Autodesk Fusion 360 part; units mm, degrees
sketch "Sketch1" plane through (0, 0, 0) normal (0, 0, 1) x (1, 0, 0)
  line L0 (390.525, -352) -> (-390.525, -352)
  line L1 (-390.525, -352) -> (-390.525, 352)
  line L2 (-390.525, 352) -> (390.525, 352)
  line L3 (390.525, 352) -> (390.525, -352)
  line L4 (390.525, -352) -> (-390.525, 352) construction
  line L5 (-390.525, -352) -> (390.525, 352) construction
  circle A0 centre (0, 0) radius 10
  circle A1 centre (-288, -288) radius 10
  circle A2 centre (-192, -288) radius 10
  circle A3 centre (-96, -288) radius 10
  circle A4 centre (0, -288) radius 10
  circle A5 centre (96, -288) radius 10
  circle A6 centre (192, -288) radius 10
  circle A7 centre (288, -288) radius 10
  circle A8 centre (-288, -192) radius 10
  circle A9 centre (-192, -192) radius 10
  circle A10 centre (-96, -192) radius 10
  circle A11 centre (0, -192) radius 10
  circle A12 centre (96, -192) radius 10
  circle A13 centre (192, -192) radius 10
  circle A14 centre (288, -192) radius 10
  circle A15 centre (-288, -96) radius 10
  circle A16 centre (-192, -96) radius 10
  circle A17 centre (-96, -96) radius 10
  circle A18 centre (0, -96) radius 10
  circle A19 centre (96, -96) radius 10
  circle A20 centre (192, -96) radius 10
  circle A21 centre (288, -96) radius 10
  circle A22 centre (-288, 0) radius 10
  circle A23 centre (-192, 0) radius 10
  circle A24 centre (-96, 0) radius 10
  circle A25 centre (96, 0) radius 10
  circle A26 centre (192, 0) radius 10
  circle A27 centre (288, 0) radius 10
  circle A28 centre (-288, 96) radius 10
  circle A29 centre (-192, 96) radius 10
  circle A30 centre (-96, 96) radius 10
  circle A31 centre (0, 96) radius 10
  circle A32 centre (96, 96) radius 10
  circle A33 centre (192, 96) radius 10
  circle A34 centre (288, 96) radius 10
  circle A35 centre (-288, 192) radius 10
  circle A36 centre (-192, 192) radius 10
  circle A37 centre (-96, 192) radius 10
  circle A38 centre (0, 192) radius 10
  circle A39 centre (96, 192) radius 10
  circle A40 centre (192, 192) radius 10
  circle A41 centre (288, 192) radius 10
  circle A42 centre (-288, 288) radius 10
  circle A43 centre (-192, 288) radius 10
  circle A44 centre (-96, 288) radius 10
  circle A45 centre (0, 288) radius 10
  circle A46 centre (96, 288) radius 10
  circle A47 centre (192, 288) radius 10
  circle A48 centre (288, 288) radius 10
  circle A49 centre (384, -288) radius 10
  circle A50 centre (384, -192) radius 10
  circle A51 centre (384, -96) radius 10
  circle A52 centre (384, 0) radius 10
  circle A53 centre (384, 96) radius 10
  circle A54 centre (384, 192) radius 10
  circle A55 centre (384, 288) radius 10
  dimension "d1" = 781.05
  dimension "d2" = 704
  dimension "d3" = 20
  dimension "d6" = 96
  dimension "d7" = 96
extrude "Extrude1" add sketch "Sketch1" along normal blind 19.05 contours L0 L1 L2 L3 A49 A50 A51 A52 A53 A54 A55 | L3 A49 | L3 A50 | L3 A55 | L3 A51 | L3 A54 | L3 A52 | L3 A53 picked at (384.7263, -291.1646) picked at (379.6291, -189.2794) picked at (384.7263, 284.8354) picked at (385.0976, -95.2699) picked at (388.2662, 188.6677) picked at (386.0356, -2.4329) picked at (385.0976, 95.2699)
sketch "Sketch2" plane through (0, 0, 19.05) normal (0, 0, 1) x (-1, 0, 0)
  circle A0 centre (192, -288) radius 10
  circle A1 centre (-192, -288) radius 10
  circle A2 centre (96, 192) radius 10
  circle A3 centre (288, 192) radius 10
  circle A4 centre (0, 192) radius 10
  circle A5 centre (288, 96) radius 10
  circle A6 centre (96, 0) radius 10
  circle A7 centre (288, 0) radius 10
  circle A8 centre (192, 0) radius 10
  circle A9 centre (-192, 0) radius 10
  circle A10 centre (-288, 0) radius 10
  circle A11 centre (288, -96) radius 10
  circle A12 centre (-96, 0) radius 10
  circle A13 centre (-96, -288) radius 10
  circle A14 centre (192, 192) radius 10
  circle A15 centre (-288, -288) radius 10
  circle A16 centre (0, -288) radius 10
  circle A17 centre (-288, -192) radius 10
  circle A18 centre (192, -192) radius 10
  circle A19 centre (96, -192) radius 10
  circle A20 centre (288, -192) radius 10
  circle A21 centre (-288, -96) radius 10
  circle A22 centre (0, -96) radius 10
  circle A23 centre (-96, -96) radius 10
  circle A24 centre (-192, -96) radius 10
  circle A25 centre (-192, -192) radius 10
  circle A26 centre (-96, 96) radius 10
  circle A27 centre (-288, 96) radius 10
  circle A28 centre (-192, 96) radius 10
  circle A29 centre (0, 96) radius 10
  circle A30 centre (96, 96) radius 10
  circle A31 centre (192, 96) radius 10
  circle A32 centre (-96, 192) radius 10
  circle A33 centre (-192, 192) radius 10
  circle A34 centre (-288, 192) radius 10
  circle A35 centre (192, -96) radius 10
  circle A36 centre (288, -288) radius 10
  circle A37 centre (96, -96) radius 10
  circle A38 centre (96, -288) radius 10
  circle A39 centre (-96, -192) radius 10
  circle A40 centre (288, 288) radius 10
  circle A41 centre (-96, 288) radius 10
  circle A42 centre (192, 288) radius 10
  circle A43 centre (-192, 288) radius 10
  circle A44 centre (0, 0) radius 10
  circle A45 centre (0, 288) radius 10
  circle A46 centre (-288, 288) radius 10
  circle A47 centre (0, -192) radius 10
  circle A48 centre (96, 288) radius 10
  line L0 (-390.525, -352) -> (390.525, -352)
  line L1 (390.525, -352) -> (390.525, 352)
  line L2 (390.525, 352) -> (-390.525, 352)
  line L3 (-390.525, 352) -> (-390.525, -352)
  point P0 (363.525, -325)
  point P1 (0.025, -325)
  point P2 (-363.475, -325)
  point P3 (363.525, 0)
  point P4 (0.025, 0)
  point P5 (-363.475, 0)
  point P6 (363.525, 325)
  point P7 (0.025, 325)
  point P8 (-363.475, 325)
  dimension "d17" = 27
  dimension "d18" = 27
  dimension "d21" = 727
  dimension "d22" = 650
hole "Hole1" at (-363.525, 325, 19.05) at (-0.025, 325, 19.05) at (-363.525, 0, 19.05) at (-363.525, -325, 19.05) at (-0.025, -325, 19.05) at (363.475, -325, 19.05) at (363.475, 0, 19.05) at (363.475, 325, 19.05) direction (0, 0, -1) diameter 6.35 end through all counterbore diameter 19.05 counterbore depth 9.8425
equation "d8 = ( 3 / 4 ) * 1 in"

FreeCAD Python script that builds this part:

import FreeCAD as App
import Part
import Sketcher
Q = App.Units.Quantity


def add_polygon(sketch, points):
    """Adds a closed chain of lines whose ends are joined by coincident constraints."""
    first, n = sketch.GeometryCount, len(points)
    for a, b in zip(points, points[1:] + points[:1]):
        sketch.addGeometry(Part.LineSegment(App.Vector(*a, 0), App.Vector(*b, 0)), False)
    for i in range(n):
        sketch.addConstraint(Sketcher.Constraint("Coincident", first + i, 2, first + (i + 1) % n, 1))

doc = App.newDocument("Part")
body = doc.addObject("PartDesign::Body", "Body")

sketch1 = body.newObject("Sketcher::SketchObject", "Sketch")
sketch1.AttachmentSupport = (doc.getObject("XY_Plane"), [""])
sketch1.MapMode = "FlatFace"
add_polygon(sketch1, [(-391, -352), (391, -352), (391, 352), (-391, 352)])
sketch1.addGeometry(Part.Circle(App.Vector(-288, -288, 0), App.Vector(0, 0, 1), 10), False)
sketch1.addGeometry(Part.Circle(App.Vector(-288, -192, 0), App.Vector(0, 0, 1), 10), False)
sketch1.addGeometry(Part.Circle(App.Vector(-192, -288, 0), App.Vector(0, 0, 1), 10), False)
sketch1.addGeometry(Part.Circle(App.Vector(-96, -288, 0), App.Vector(0, 0, 1), 10), False)
sketch1.addGeometry(Part.Circle(App.Vector(0, -288, 0), App.Vector(0, 0, 1), 10), False)
sketch1.addGeometry(Part.Circle(App.Vector(-192, -192, 0), App.Vector(0, 0, 1), 10), False)
sketch1.addGeometry(Part.Circle(App.Vector(-96, -192, 0), App.Vector(0, 0, 1), 10), False)
sketch1.addGeometry(Part.Circle(App.Vector(0, -192, 0), App.Vector(0, 0, 1), 10), False)
sketch1.addGeometry(Part.Circle(App.Vector(-288, -96, 0), App.Vector(0, 0, 1), 10), False)
sketch1.addGeometry(Part.Circle(App.Vector(-192, -96, 0), App.Vector(0, 0, 1), 10), False)
sketch1.addGeometry(Part.Circle(App.Vector(-96, -96, 0), App.Vector(0, 0, 1), 10), False)
sketch1.addGeometry(Part.Circle(App.Vector(0, -96, 0), App.Vector(0, 0, 1), 10), False)
sketch1.addGeometry(Part.Circle(App.Vector(96, -288, 0), App.Vector(0, 0, 1), 10), False)
sketch1.addGeometry(Part.Circle(App.Vector(192, -288, 0), App.Vector(0, 0, 1), 10), False)
sketch1.addGeometry(Part.Circle(App.Vector(96, -192, 0), App.Vector(0, 0, 1), 10), False)
sketch1.addGeometry(Part.Circle(App.Vector(192, -192, 0), App.Vector(0, 0, 1), 10), False)
sketch1.addGeometry(Part.Circle(App.Vector(288, -288, 0), App.Vector(0, 0, 1), 10), False)
sketch1.addGeometry(Part.Circle(App.Vector(288, -192, 0), App.Vector(0, 0, 1), 10), False)
sketch1.addGeometry(Part.Circle(App.Vector(96, -96, 0), App.Vector(0, 0, 1), 10), False)
sketch1.addGeometry(Part.Circle(App.Vector(192, -96, 0), App.Vector(0, 0, 1), 10), False)
sketch1.addGeometry(Part.Circle(App.Vector(288, -96, 0), App.Vector(0, 0, 1), 10), False)
sketch1.addGeometry(Part.Circle(App.Vector(-288, 0, 0), App.Vector(0, 0, 1), 10), False)
sketch1.addGeometry(Part.Circle(App.Vector(-288, 96, 0), App.Vector(0, 0, 1), 10), False)
sketch1.addGeometry(Part.Circle(App.Vector(-192, 0, 0), App.Vector(0, 0, 1), 10), False)
sketch1.addGeometry(Part.Circle(App.Vector(-96, 0, 0), App.Vector(0, 0, 1), 10), False)
sketch1.addGeometry(Part.Circle(App.Vector(0, 0, 0), App.Vector(0, 0, 1), 10), False)
sketch1.addGeometry(Part.Circle(App.Vector(-192, 96, 0), App.Vector(0, 0, 1), 10), False)
sketch1.addGeometry(Part.Circle(App.Vector(-96, 96, 0), App.Vector(0, 0, 1), 10), False)
sketch1.addGeometry(Part.Circle(App.Vector(0, 96, 0), App.Vector(0, 0, 1), 10), False)
sketch1.addGeometry(Part.Circle(App.Vector(-288, 192, 0), App.Vector(0, 0, 1), 10), False)
sketch1.addGeometry(Part.Circle(App.Vector(-288, 288, 0), App.Vector(0, 0, 1), 10), False)
sketch1.addGeometry(Part.Circle(App.Vector(-192, 192, 0), App.Vector(0, 0, 1), 10), False)
sketch1.addGeometry(Part.Circle(App.Vector(-96, 192, 0), App.Vector(0, 0, 1), 10), False)
sketch1.addGeometry(Part.Circle(App.Vector(0, 192, 0), App.Vector(0, 0, 1), 10), False)
sketch1.addGeometry(Part.Circle(App.Vector(-192, 288, 0), App.Vector(0, 0, 1), 10), False)
sketch1.addGeometry(Part.Circle(App.Vector(-96, 288, 0), App.Vector(0, 0, 1), 10), False)
sketch1.addGeometry(Part.Circle(App.Vector(0, 288, 0), App.Vector(0, 0, 1), 10), False)
sketch1.addGeometry(Part.Circle(App.Vector(96, 0, 0), App.Vector(0, 0, 1), 10), False)
sketch1.addGeometry(Part.Circle(App.Vector(192, 0, 0), App.Vector(0, 0, 1), 10), False)
sketch1.addGeometry(Part.Circle(App.Vector(96, 96, 0), App.Vector(0, 0, 1), 10), False)
sketch1.addGeometry(Part.Circle(App.Vector(192, 96, 0), App.Vector(0, 0, 1), 10), False)
sketch1.addGeometry(Part.Circle(App.Vector(288, 0, 0), App.Vector(0, 0, 1), 10), False)
sketch1.addGeometry(Part.Circle(App.Vector(288, 96, 0), App.Vector(0, 0, 1), 10), False)
sketch1.addGeometry(Part.Circle(App.Vector(96, 192, 0), App.Vector(0, 0, 1), 10), False)
sketch1.addGeometry(Part.Circle(App.Vector(192, 192, 0), App.Vector(0, 0, 1), 10), False)
sketch1.addGeometry(Part.Circle(App.Vector(96, 288, 0), App.Vector(0, 0, 1), 10), False)
sketch1.addGeometry(Part.Circle(App.Vector(192, 288, 0), App.Vector(0, 0, 1), 10), False)
sketch1.addGeometry(Part.Circle(App.Vector(288, 192, 0), App.Vector(0, 0, 1), 10), False)
sketch1.addGeometry(Part.Circle(App.Vector(288, 288, 0), App.Vector(0, 0, 1), 10), False)
sketch1.addConstraint(Sketcher.Constraint("Horizontal", 0))
sketch1.addConstraint(Sketcher.Constraint("Vertical", 1))
sketch1.addConstraint(Sketcher.Constraint("Horizontal", 2))
sketch1.addConstraint(Sketcher.Constraint("Vertical", 3))
sketch1.addConstraint(Sketcher.Constraint("Coincident", 29, 3, -1, 1))
sketch1.addConstraint(Sketcher.Constraint("Equal", 4, 5))
sketch1.addConstraint(Sketcher.Constraint("Equal", 5, 6))
sketch1.addConstraint(Sketcher.Constraint("Equal", 6, 7))
sketch1.addConstraint(Sketcher.Constraint("Equal", 7, 8))
sketch1.addConstraint(Sketcher.Constraint("Equal", 8, 9))
sketch1.addConstraint(Sketcher.Constraint("Equal", 9, 10))
sketch1.addConstraint(Sketcher.Constraint("Equal", 10, 11))
sketch1.addConstraint(Sketcher.Constraint("Equal", 11, 12))
sketch1.addConstraint(Sketcher.Constraint("Equal", 12, 13))
sketch1.addConstraint(Sketcher.Constraint("Equal", 13, 14))
sketch1.addConstraint(Sketcher.Constraint("Equal", 14, 15))
sketch1.addConstraint(Sketcher.Constraint("Equal", 15, 16))
sketch1.addConstraint(Sketcher.Constraint("Equal", 16, 17))
sketch1.addConstraint(Sketcher.Constraint("Equal", 17, 18))
sketch1.addConstraint(Sketcher.Constraint("Equal", 18, 19))
sketch1.addConstraint(Sketcher.Constraint("Equal", 19, 20))
sketch1.addConstraint(Sketcher.Constraint("Equal", 20, 21))
sketch1.addConstraint(Sketcher.Constraint("Equal", 21, 22))
sketch1.addConstraint(Sketcher.Constraint("Equal", 22, 23))
sketch1.addConstraint(Sketcher.Constraint("Equal", 23, 24))
sketch1.addConstraint(Sketcher.Constraint("Equal", 24, 25))
sketch1.addConstraint(Sketcher.Constraint("Equal", 25, 26))
sketch1.addConstraint(Sketcher.Constraint("Equal", 26, 27))
sketch1.addConstraint(Sketcher.Constraint("Equal", 27, 28))
sketch1.addConstraint(Sketcher.Constraint("Equal", 28, 29))
sketch1.addConstraint(Sketcher.Constraint("Equal", 29, 30))
sketch1.addConstraint(Sketcher.Constraint("Equal", 30, 31))
sketch1.addConstraint(Sketcher.Constraint("Equal", 31, 32))
sketch1.addConstraint(Sketcher.Constraint("Equal", 32, 33))
sketch1.addConstraint(Sketcher.Constraint("Equal", 33, 34))
sketch1.addConstraint(Sketcher.Constraint("Equal", 34, 35))
sketch1.addConstraint(Sketcher.Constraint("Equal", 35, 36))
sketch1.addConstraint(Sketcher.Constraint("Equal", 36, 37))
sketch1.addConstraint(Sketcher.Constraint("Equal", 37, 38))
sketch1.addConstraint(Sketcher.Constraint("Equal", 38, 39))
sketch1.addConstraint(Sketcher.Constraint("Equal", 39, 40))
sketch1.addConstraint(Sketcher.Constraint("Equal", 40, 41))
sketch1.addConstraint(Sketcher.Constraint("Equal", 41, 42))
sketch1.addConstraint(Sketcher.Constraint("Equal", 42, 43))
sketch1.addConstraint(Sketcher.Constraint("Equal", 43, 44))
sketch1.addConstraint(Sketcher.Constraint("Equal", 44, 45))
sketch1.addConstraint(Sketcher.Constraint("Equal", 45, 46))
sketch1.addConstraint(Sketcher.Constraint("Equal", 46, 47))
sketch1.addConstraint(Sketcher.Constraint("Equal", 47, 48))
sketch1.addConstraint(Sketcher.Constraint("Equal", 48, 49))
sketch1.addConstraint(Sketcher.Constraint("Equal", 49, 50))
sketch1.addConstraint(Sketcher.Constraint("Equal", 50, 51))
sketch1.addConstraint(Sketcher.Constraint("Equal", 51, 52))
sketch1.addConstraint(Sketcher.Constraint("Symmetric", 24, 3, 26, 3, -1, 1))
sketch1.addConstraint(Sketcher.Constraint("Symmetric", 23, 3, 30, 3, -1, 1))
sketch1.addConstraint(Sketcher.Constraint("Symmetric", 22, 3, 31, 3, -1, 1))
sketch1.addConstraint(Sketcher.Constraint("Symmetric", 15, 3, 32, 3, -1, 1))
sketch1.addConstraint(Sketcher.Constraint("Symmetric", 21, 3, 33, 3, -1, 1))
sketch1.addConstraint(Sketcher.Constraint("Symmetric", 20, 3, 34, 3, -1, 1))
sketch1.addConstraint(Sketcher.Constraint("Symmetric", 19, 3, 35, 3, -1, 1))
sketch1.addConstraint(Sketcher.Constraint("Symmetric", 18, 3, 36, 3, -1, 1))
sketch1.addConstraint(Sketcher.Constraint("Symmetric", 11, 3, 37, 3, -1, 1))
sketch1.addConstraint(Sketcher.Constraint("Symmetric", 17, 3, 38, 3, -1, 1))
sketch1.addConstraint(Sketcher.Constraint("Symmetric", 16, 3, 39, 3, -1, 1))
sketch1.addConstraint(Sketcher.Constraint("Symmetric", 8, 3, 40, 3, -1, 1))
sketch1.addConstraint(Sketcher.Constraint("Symmetric", 28, 3, 41, 3, -1, 1))
sketch1.addConstraint(Sketcher.Constraint("Symmetric", 27, 3, 42, 3, -1, 1))
sketch1.addConstraint(Sketcher.Constraint("Symmetric", 14, 3, 43, 3, -1, 1))
sketch1.addConstraint(Sketcher.Constraint("Symmetric", 13, 3, 44, 3, -1, 1))
sketch1.addConstraint(Sketcher.Constraint("Symmetric", 25, 3, 45, 3, -1, 1))
sketch1.addConstraint(Sketcher.Constraint("Symmetric", 12, 3, 46, 3, -1, 1))
sketch1.addConstraint(Sketcher.Constraint("Symmetric", 10, 3, 47, 3, -1, 1))
sketch1.addConstraint(Sketcher.Constraint("Symmetric", 9, 3, 48, 3, -1, 1))
sketch1.addConstraint(Sketcher.Constraint("Symmetric", 7, 3, 49, 3, -1, 1))
sketch1.addConstraint(Sketcher.Constraint("Symmetric", 6, 3, 50, 3, -1, 1))
sketch1.addConstraint(Sketcher.Constraint("Symmetric", 5, 3, 51, 3, -1, 1))
sketch1.addConstraint(Sketcher.Constraint("Symmetric", 4, 3, 52, 3, -1, 1))
sketch1.addConstraint(Sketcher.Constraint("Symmetric", 0, 2, 2, 2, -1, 1))
sketch1.addConstraint(Sketcher.Constraint("Symmetric", 7, 3, 16, 3, -2))
sketch1.addConstraint(Sketcher.Constraint("Symmetric", 6, 3, 17, 3, -2))
sketch1.addConstraint(Sketcher.Constraint("Symmetric", 10, 3, 18, 3, -2))
sketch1.addConstraint(Sketcher.Constraint("Symmetric", 9, 3, 19, 3, -2))
sketch1.addConstraint(Sketcher.Constraint("Symmetric", 4, 3, 20, 3, -2))
sketch1.addConstraint(Sketcher.Constraint("Symmetric", 5, 3, 21, 3, -2))
sketch1.addConstraint(Sketcher.Constraint("Symmetric", 14, 3, 22, 3, -2))
sketch1.addConstraint(Sketcher.Constraint("Symmetric", 13, 3, 23, 3, -2))
sketch1.addConstraint(Sketcher.Constraint("Symmetric", 12, 3, 24, 3, -2))
sketch1.addConstraint(Sketcher.Constraint("PointOnObject", 8, 3, -2))
sketch1.addConstraint(Sketcher.Constraint("PointOnObject", 11, 3, -2))
sketch1.addConstraint(Sketcher.Constraint("PointOnObject", 15, 3, -2))
sketch1.addConstraint(Sketcher.Constraint("PointOnObject", 25, 3, -1))
sketch1.addConstraint(Sketcher.Constraint("PointOnObject", 27, 3, -1))
sketch1.addConstraint(Sketcher.Constraint("PointOnObject", 28, 3, -1))
sketch1.addConstraint(Sketcher.Constraint("Horizontal", 4, 3, 6, 3))
sketch1.addConstraint(Sketcher.Constraint("Horizontal", 6, 3, 7, 3))
sketch1.addConstraint(Sketcher.Constraint("Horizontal", 7, 3, 8, 3))
sketch1.addConstraint(Sketcher.Constraint("Horizontal", 5, 3, 9, 3))
sketch1.addConstraint(Sketcher.Constraint("Horizontal", 9, 3, 10, 3))
sketch1.addConstraint(Sketcher.Constraint("Horizontal", 10, 3, 11, 3))
sketch1.addConstraint(Sketcher.Constraint("Horizontal", 12, 3, 13, 3))
sketch1.addConstraint(Sketcher.Constraint("Horizontal", 13, 3, 14, 3))
sketch1.addConstraint(Sketcher.Constraint("Horizontal", 14, 3, 15, 3))
sketch1.addConstraint(Sketcher.Constraint("Vertical", 4, 3, 5, 3))
sketch1.addConstraint(Sketcher.Constraint("Vertical", 6, 3, 9, 3))
sketch1.addConstraint(Sketcher.Constraint("Vertical", 7, 3, 10, 3))
sketch1.addConstraint(Sketcher.Constraint("Vertical", 5, 3, 12, 3))
sketch1.addConstraint(Sketcher.Constraint("Vertical", 9, 3, 13, 3))
sketch1.addConstraint(Sketcher.Constraint("Vertical", 10, 3, 14, 3))
sketch1.addConstraint(Sketcher.Constraint("Vertical", 12, 3, 25, 3))
sketch1.addConstraint(Sketcher.Constraint("Vertical", 13, 3, 27, 3))
sketch1.addConstraint(Sketcher.Constraint("Vertical", 14, 3, 28, 3))
sketch1.addConstraint(Sketcher.Constraint("Diameter", 4, Q("0.7874 in")))
sketch1.addConstraint(Sketcher.Constraint("DistanceX", 0, 1, 0, 2, Q("30.75 in")))
sketch1.addConstraint(Sketcher.Constraint("DistanceY", 1, 1, 1, 2, 704.0))
sketch1.addConstraint(Sketcher.Constraint("DistanceX", 7, 3, -1, 1, 96.0))
sketch1.addConstraint(Sketcher.Constraint("DistanceY", 12, 3, -1, 1, 96.0))
sketch1.addConstraint(Sketcher.Constraint("DistanceY", 4, 3, 5, 3, 96.0))
sketch1.addConstraint(Sketcher.Constraint("DistanceX", 4, 3, 6, 3, 96.0))
sketch1.addConstraint(Sketcher.Constraint("DistanceX", 6, 3, 7, 3, 96.0))
sketch1.addConstraint(Sketcher.Constraint("DistanceY", 5, 3, 12, 3, 96.0))
pad1 = body.newObject("PartDesign::Pad", "Pad")
pad1.Profile = sketch1
pad1.Length = Q("0.75 in")

sketch2 = body.newObject("Sketcher::SketchObject", "Sketch001")
sketch2.AttachmentSupport = (doc.getObject("XY_Plane"), [""])
sketch2.MapMode = "FlatFace"
sketch2.AttachmentOffset = App.Placement(App.Vector(0, 0, 0.75 * 25.4), App.Rotation())
sketch2.addGeometry(Part.Circle(App.Vector(-363.5, 325, 0), App.Vector(0, 0, 1), 3.2), False)
sketch2.addGeometry(Part.Circle(App.Vector(0, 325, 0), App.Vector(0, 0, 1), 3.2), False)
sketch2.addGeometry(Part.Circle(App.Vector(-363.5, 0, 0), App.Vector(0, 0, 1), 3.2), False)
sketch2.addGeometry(Part.Circle(App.Vector(-363.5, -325, 0), App.Vector(0, 0, 1), 3.2), False)
sketch2.addGeometry(Part.Circle(App.Vector(0, -325, 0), App.Vector(0, 0, 1), 3.2), False)
sketch2.addGeometry(Part.Circle(App.Vector(363.5, -325, 0), App.Vector(0, 0, 1), 3.2), False)
sketch2.addGeometry(Part.Circle(App.Vector(363.5, 0, 0), App.Vector(0, 0, 1), 3.2), False)
sketch2.addGeometry(Part.Circle(App.Vector(363.5, 325, 0), App.Vector(0, 0, 1), 3.2), False)
sketch2.addConstraint(Sketcher.Constraint("Equal", 0, 1))
sketch2.addConstraint(Sketcher.Constraint("Equal", 1, 2))
sketch2.addConstraint(Sketcher.Constraint("Equal", 2, 3))
sketch2.addConstraint(Sketcher.Constraint("Equal", 3, 4))
sketch2.addConstraint(Sketcher.Constraint("Equal", 4, 5))
sketch2.addConstraint(Sketcher.Constraint("Equal", 5, 6))
sketch2.addConstraint(Sketcher.Constraint("Equal", 6, 7))
sketch2.addConstraint(Sketcher.Constraint("Symmetric", 0, 3, 3, 3, -1))
sketch2.addConstraint(Sketcher.Constraint("Symmetric", 1, 3, 4, 3, -1))
sketch2.addConstraint(Sketcher.Constraint("Symmetric", 5, 3, 7, 3, -1))
sketch2.addConstraint(Sketcher.Constraint("PointOnObject", 2, 3, -1))
sketch2.addConstraint(Sketcher.Constraint("PointOnObject", 6, 3, -1))
sketch2.addConstraint(Sketcher.Constraint("Horizontal", 0, 3, 1, 3))
sketch2.addConstraint(Sketcher.Constraint("Horizontal", 4, 3, 5, 3))
sketch2.addConstraint(Sketcher.Constraint("Vertical", 0, 3, 2, 3))
sketch2.addConstraint(Sketcher.Constraint("Vertical", 5, 3, 6, 3))
sketch2.addConstraint(Sketcher.Constraint("Diameter", 0, Q("0.25 in")))
sketch2.addConstraint(Sketcher.Constraint("DistanceX", 0, 3, -1, 1, Q("14.312 in")))
sketch2.addConstraint(Sketcher.Constraint("DistanceY", -1, 1, 0, 3, 325.0))
sketch2.addConstraint(Sketcher.Constraint("DistanceX", 1, 3, -1, 1, 0.025))
sketch2.addConstraint(Sketcher.Constraint("DistanceX", -1, 1, 5, 3, 363.475))
doc.recompute()
hole = body.newObject("PartDesign::Hole", "Hole")
hole.Profile = sketch2
hole.ThreadType = "None"
hole.Diameter = Q("0.25 in")
hole.DepthType = "ThroughAll"
hole.HoleCutType = "Counterbore"
hole.HoleCutDiameter = Q("0.75 in")
hole.HoleCutDepth = Q("0.3875 in")

doc.recompute()
